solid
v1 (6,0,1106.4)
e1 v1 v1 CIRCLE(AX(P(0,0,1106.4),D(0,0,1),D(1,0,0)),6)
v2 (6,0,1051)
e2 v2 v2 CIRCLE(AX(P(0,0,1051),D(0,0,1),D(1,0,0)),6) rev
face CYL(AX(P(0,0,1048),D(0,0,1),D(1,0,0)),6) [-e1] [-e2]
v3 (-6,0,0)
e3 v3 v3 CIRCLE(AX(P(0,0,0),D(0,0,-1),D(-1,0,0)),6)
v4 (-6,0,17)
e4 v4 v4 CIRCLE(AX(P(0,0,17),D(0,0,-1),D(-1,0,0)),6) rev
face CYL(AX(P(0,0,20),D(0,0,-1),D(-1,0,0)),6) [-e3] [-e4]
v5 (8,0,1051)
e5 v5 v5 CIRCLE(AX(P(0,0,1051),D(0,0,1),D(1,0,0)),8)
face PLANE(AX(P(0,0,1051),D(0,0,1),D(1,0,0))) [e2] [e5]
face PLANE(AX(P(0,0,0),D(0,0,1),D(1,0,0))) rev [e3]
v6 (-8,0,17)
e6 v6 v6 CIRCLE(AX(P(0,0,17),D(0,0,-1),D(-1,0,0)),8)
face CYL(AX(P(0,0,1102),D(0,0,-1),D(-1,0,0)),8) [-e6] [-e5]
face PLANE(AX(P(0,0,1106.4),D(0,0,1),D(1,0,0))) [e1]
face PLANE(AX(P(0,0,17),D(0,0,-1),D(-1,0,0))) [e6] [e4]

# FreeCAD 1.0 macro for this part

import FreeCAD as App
import Part
import Sketcher

doc = App.newDocument("Part")
body = doc.addObject("PartDesign::Body", "Body")

sketch1 = body.newObject("Sketcher::SketchObject", "Sketch")
sketch1.AttachmentSupport = (doc.getObject("XY_Plane"), [""])
sketch1.MapMode = "FlatFace"
sketch1.addGeometry(Part.Circle(App.Vector(0, 0, 0), App.Vector(0, 0, 1), 8), False)
sketch1.addConstraint([
    Sketcher.Constraint("Coincident", 0, 3, -1, 1),
    Sketcher.Constraint("Diameter", 0, 16.0),
])
pad1 = body.newObject("PartDesign::Pad", "Pad")
pad1.Profile = sketch1
pad1.Length = 1102

sketch2 = body.newObject("Sketcher::SketchObject", "Sketch001")
sketch2.AttachmentSupport = (doc.getObject("XY_Plane"), [""])
sketch2.MapMode = "FlatFace"
sketch2.AttachmentOffset = App.Placement(App.Vector(0, 0, 1102), App.Rotation())
sketch2.addGeometry([
    Part.Circle(App.Vector(0, 0, 0), App.Vector(0, 0, 1), 8),
    Part.Circle(App.Vector(0, 0, 0), App.Vector(0, 0, 1), 6),
], False)
sketch2.addConstraint([
    Sketcher.Constraint("Coincident", 0, 3, -1, 1),
    Sketcher.Constraint("Coincident", 1, 3, -1, 1),
    Sketcher.Constraint("Diameter", 0, 16.0),
    Sketcher.Constraint("Diameter", 1, 12.0),
])
pocket1 = body.newObject("PartDesign::Pocket", "Pocket")
pocket1.Profile = sketch2
pocket1.Length = 54

sketch3 = body.newObject("Sketcher::SketchObject", "Sketch002")
sketch3.AttachmentSupport = (doc.getObject("XY_Plane"), [""])
sketch3.MapMode = "FlatFace"
sketch3.addGeometry([
    Part.Circle(App.Vector(0, 0, 0), App.Vector(0, 0, 1), 8),
    Part.Circle(App.Vector(0, 0, 0), App.Vector(0, 0, 1), 6),
], False)
sketch3.addConstraint([
    Sketcher.Constraint("Coincident", 0, 3, -1, 1),
    Sketcher.Constraint("Coincident", 1, 3, -1, 1),
    Sketcher.Constraint("Diameter", 0, 16.0),
    Sketcher.Constraint("Diameter", 1, 12.0),
])
pocket2 = body.newObject("PartDesign::Pocket", "Pocket001")
pocket2.Profile = sketch3
pocket2.Length = 20
pocket2.Reversed = True

sketch4 = body.newObject("Sketcher::SketchObject", "Sketch003")
sketch4.AttachmentSupport = (doc.getObject("XY_Plane"), [""])
sketch4.MapMode = "FlatFace"
sketch4.AttachmentOffset = App.Placement(App.Vector(0, 0, 1102), App.Rotation())
sketch4.addGeometry(Part.Circle(App.Vector(0, 0, 0), App.Vector(0, 0, 1), 6), False)
sketch4.addConstraint([
    Sketcher.Constraint("Coincident", 0, 3, -1, 1),
    Sketcher.Constraint("Diameter", 0, 12.0),
])
pad2 = body.newObject("PartDesign::Pad", "Pad001")
pad2.Profile = sketch4
pad2.Length = 4.4

sketch5 = body.newObject("Sketcher::SketchObject", "Sketch004")
sketch5.AttachmentSupport = (doc.getObject("XY_Plane"), [""])
sketch5.MapMode = "FlatFace"
sketch5.AttachmentOffset = App.Placement(App.Vector(0, 0, 1048), App.Rotation())
sketch5.addGeometry([
    Part.Circle(App.Vector(0, 0, 0), App.Vector(0, 0, 1), 8),
    Part.Circle(App.Vector(0, 0, 0), App.Vector(0, 0, 1), 6),
], False)
sketch5.addConstraint([
    Sketcher.Constraint("Coincident", 0, 3, -1, 1),
    Sketcher.Constraint("Coincident", 1, 3, -1, 1),
    Sketcher.Constraint("Diameter", 0, 16.0),
    Sketcher.Constraint("Diameter", 1, 12.0),
])
pad3 = body.newObject("PartDesign::Pad", "Pad002")
pad3.Profile = sketch5
pad3.Length = 3

sketch6 = body.newObject("Sketcher::SketchObject", "Sketch005")
sketch6.AttachmentSupport = (doc.getObject("XY_Plane"), [""])
sketch6.MapMode = "FlatFace"
sketch6.AttachmentOffset = App.Placement(App.Vector(0, 0, 20), App.Rotation())
sketch6.addGeometry([
    Part.Circle(App.Vector(0, 0, 0), App.Vector(0, 0, 1), 8),
    Part.Circle(App.Vector(0, 0, 0), App.Vector(0, 0, 1), 6),
], False)
sketch6.addConstraint([
    Sketcher.Constraint("Coincident", 0, 3, -1, 1),
    Sketcher.Constraint("Coincident", 1, 3, -1, 1),
    Sketcher.Constraint("Diameter", 0, 16.0),
    Sketcher.Constraint("Diameter", 1, 12.0),
])
pad4 = body.newObject("PartDesign::Pad", "Pad003")
pad4.Profile = sketch6
pad4.Length = 3
pad4.Reversed = True

doc.recompute()
